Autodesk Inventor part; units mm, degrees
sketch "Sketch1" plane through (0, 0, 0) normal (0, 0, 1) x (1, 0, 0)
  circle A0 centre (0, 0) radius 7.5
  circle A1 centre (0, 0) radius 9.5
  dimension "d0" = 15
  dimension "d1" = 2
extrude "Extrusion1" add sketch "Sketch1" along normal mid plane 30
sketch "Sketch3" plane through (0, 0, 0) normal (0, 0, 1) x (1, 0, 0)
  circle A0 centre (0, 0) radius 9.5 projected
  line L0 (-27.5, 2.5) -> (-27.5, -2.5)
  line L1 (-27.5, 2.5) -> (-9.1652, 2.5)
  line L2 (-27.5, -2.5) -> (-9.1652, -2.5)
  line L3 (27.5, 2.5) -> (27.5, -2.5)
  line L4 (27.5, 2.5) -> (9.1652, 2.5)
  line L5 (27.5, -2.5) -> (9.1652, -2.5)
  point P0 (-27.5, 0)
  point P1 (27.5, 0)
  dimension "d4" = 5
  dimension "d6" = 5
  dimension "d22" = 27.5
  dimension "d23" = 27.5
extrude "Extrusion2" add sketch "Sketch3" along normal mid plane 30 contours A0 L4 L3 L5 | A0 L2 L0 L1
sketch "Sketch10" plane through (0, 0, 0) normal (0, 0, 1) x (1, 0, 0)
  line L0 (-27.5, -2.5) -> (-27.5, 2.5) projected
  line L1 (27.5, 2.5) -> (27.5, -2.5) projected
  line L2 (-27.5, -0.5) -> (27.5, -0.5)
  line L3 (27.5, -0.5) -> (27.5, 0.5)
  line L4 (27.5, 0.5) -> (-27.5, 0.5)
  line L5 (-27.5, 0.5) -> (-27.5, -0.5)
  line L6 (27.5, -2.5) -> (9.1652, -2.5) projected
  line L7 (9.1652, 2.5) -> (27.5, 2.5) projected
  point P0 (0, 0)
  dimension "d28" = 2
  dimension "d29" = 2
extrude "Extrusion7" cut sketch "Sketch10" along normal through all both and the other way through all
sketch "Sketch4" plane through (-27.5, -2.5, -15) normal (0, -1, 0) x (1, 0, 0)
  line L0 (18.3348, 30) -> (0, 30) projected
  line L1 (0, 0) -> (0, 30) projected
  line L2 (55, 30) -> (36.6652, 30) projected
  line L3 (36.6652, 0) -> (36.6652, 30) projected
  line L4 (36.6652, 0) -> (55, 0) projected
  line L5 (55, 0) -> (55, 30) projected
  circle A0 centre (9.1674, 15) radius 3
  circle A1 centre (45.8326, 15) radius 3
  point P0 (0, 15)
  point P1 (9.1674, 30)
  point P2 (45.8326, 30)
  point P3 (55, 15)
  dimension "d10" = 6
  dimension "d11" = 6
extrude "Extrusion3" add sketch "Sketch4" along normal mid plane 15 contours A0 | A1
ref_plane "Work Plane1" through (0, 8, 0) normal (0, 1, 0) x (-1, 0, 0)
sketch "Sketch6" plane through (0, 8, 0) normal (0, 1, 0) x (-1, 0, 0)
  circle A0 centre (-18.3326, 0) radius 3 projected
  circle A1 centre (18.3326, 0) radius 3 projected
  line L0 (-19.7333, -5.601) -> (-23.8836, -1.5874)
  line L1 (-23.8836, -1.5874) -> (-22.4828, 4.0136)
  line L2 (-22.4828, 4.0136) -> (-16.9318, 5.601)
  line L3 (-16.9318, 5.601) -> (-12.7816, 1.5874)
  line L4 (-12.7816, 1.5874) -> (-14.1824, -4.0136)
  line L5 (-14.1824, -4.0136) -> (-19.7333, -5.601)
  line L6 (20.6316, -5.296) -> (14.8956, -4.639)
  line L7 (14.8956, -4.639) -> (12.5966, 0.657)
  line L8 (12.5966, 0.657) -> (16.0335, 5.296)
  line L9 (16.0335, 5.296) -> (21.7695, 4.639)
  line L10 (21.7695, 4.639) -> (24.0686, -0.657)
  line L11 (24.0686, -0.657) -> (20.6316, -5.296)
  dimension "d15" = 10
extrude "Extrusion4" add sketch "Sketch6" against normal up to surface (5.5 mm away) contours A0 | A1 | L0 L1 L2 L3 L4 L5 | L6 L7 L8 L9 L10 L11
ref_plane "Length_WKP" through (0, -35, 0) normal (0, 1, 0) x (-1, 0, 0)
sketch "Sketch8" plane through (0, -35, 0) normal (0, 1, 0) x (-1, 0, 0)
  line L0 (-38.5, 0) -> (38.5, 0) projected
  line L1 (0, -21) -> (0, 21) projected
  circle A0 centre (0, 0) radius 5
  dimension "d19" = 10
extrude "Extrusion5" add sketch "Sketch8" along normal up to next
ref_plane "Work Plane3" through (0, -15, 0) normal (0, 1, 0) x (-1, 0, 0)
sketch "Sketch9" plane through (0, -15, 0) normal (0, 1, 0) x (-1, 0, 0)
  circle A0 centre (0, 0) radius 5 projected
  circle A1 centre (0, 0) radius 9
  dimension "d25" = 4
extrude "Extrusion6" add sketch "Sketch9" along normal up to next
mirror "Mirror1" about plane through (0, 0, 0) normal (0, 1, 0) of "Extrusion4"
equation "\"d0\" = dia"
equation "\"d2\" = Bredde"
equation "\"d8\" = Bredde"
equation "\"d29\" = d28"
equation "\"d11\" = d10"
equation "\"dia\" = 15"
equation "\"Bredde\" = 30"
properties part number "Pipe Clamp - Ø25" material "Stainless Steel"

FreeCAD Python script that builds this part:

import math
import FreeCAD as App
import Part
import Sketcher

V = App.Vector
Q = App.Units.Quantity

doc = App.newDocument("Part")
body = doc.addObject("PartDesign::Body", "Body")
body.AllowCompound = True

sketch1 = body.newObject("Sketcher::SketchObject", "Sketch")
sketch1.AttachmentSupport = (doc.getObject("XY_Plane"), [""])
sketch1.MapMode = "FlatFace"
sketch1.addGeometry([
    Part.Circle(V(0, 0, 0), V(0, 0, 1), 9.5),
    Part.Circle(V(0, 0, 0), V(0, 0, 1), 7.5),
], False)
sketch1.addConstraint([
    Sketcher.Constraint("Coincident", 0, 3, -1, 1),
    Sketcher.Constraint("Coincident", 1, 3, -1, 1),
    Sketcher.Constraint("Diameter", 1, Q("15 mm")),
    Sketcher.Constraint("Diameter", 0, Q("19 mm")),
])
pad1 = body.newObject("PartDesign::Pad", "Pad")
pad1.Profile = sketch1
pad1.Length = 30
pad1.Midplane = True

sketch2 = body.newObject("Sketcher::SketchObject", "Sketch001")
sketch2.AttachmentSupport = (doc.getObject("XY_Plane"), [""])
sketch2.MapMode = "FlatFace"
sketch2.addGeometry([
    Part.ArcOfCircle(Part.Circle(V(0, 0, 0), V(0, 0, 1), 9.5), math.radians(-15.257446), math.radians(15.257446)),
    Part.LineSegment(V(9.1652, -2.5, 0), V(27.5, -2.5, 0)),
    Part.LineSegment(V(27.5, -2.5, 0), V(27.5, 2.5, 0)),
    Part.LineSegment(V(27.5, 2.5, 0), V(9.1652, 2.5, 0)),
    Part.ArcOfCircle(Part.Circle(V(0, 0, 0), V(0, 0, 1), 9.5), math.radians(164.742554), math.radians(195.257446)),
    Part.LineSegment(V(-9.1652, 2.5, 0), V(-27.5, 2.5, 0)),
    Part.LineSegment(V(-27.5, 2.5, 0), V(-27.5, -2.5, 0)),
    Part.LineSegment(V(-27.5, -2.5, 0), V(-9.1652, -2.5, 0)),
], False)
sketch2.addConstraint([
    Sketcher.Constraint("Coincident", 0, 1, 1, 1),
    Sketcher.Constraint("Coincident", 1, 2, 2, 1),
    Sketcher.Constraint("Coincident", 2, 2, 3, 1),
    Sketcher.Constraint("Coincident", 3, 2, 0, 2),
    Sketcher.Constraint("Coincident", 4, 1, 5, 1),
    Sketcher.Constraint("Coincident", 5, 2, 6, 1),
    Sketcher.Constraint("Coincident", 6, 2, 7, 1),
    Sketcher.Constraint("Coincident", 7, 2, 4, 2),
    Sketcher.Constraint("Horizontal", 1),
    Sketcher.Constraint("Vertical", 2),
    Sketcher.Constraint("Horizontal", 3),
    Sketcher.Constraint("Horizontal", 5),
    Sketcher.Constraint("Vertical", 6),
    Sketcher.Constraint("Horizontal", 7),
    Sketcher.Constraint("Coincident", 0, 3, -1, 1),
    Sketcher.Constraint("Coincident", 4, 3, -1, 1),
    Sketcher.Constraint("Equal", 0, 4),
    Sketcher.Constraint("Symmetric", 1, 2, 5, 2, -1, 1),
    Sketcher.Constraint("Horizontal", 3, 2, 4, 1),
    Sketcher.Constraint("Horizontal", 1, 2, 6, 2),
    Sketcher.Constraint("DistanceY", 2, 1, 2, 2, Q("5 mm")),
    Sketcher.Constraint("DistanceX", -1, 1, 1, 2, Q("27.5 mm")),
    Sketcher.Constraint("Radius", 0, Q("9.5 mm")),
])
pad2 = body.newObject("PartDesign::Pad", "Pad001")
pad2.Profile = sketch2
pad2.Length = 30
pad2.Midplane = True

sketch3 = body.newObject("Sketcher::SketchObject", "Sketch002")
sketch3.AttachmentSupport = (doc.getObject("XY_Plane"), [""])
sketch3.MapMode = "FlatFace"
sketch3.addGeometry([
    Part.LineSegment(V(-27.5, 0.5, 0), V(-27.5, -0.5, 0)),
    Part.LineSegment(V(-27.5, -0.5, 0), V(27.5, -0.5, 0)),
    Part.LineSegment(V(27.5, -0.5, 0), V(27.5, 0.5, 0)),
    Part.LineSegment(V(27.5, 0.5, 0), V(-27.5, 0.5, 0)),
], False)
sketch3.addConstraint([
    Sketcher.Constraint("Coincident", 0, 2, 1, 1),
    Sketcher.Constraint("Coincident", 1, 2, 2, 1),
    Sketcher.Constraint("Coincident", 2, 2, 3, 1),
    Sketcher.Constraint("Coincident", 3, 2, 0, 1),
    Sketcher.Constraint("Vertical", 0),
    Sketcher.Constraint("Horizontal", 1),
    Sketcher.Constraint("Vertical", 2),
    Sketcher.Constraint("Horizontal", 3),
    Sketcher.Constraint("Symmetric", 0, 2, 2, 2, -1, 1),
    Sketcher.Constraint("DistanceX", 1, 1, 1, 2, Q("55 mm")),
    Sketcher.Constraint("DistanceY", 0, 2, 0, 1, Q("1 mm")),
])
pocket1 = body.newObject("PartDesign::Pocket", "Pocket")
pocket1.Profile = sketch3
pocket1.Type = "ThroughAll"
pocket1.Midplane = True

sketch4 = body.newObject("Sketcher::SketchObject", "Sketch003")
sketch4.AttachmentSupport = (doc.getObject("XZ_Plane"), [""])
sketch4.MapMode = "FlatFace"
sketch4.AttachmentOffset = App.Placement(V(0, 0, 2.5), App.Rotation())
sketch4.addGeometry([
    Part.Circle(V(-18.3326, 0, 0), V(0, 0, 1), 3),
    Part.Circle(V(18.3326, 0, 0), V(0, 0, 1), 3),
], False)
sketch4.addConstraint([
    Sketcher.Constraint("Equal", 0, 1),
    Sketcher.Constraint("Symmetric", 0, 3, 1, 3, -1, 1),
    Sketcher.Constraint("PointOnObject", 0, 3, -1),
    Sketcher.Constraint("Diameter", 0, Q("6 mm")),
    Sketcher.Constraint("DistanceX", 0, 3, -1, 1, Q("18.3326 mm")),
])
pad3 = body.newObject("PartDesign::Pad", "Pad002")
pad3.Profile = sketch4
pad3.Length = 15
pad3.Midplane = True

sketch5 = body.newObject("Sketcher::SketchObject", "Sketch004")
sketch5.AttachmentSupport = (doc.getObject("XZ_Plane"), [""])
sketch5.MapMode = "FlatFace"
sketch5.AttachmentOffset = App.Placement(V(0, 0, -8), App.Rotation())
sketch5.addGeometry([
    Part.LineSegment(V(23.8836, -1.5874, 0), V(19.7333, -5.601, 0)),
    Part.LineSegment(V(19.7333, -5.601, 0), V(14.1824, -4.0136, 0)),
    Part.LineSegment(V(14.1824, -4.0136, 0), V(12.7816, 1.5874, 0)),
    Part.LineSegment(V(12.7816, 1.5874, 0), V(16.9318, 5.601, 0)),
    Part.LineSegment(V(16.9318, 5.601, 0), V(22.4828, 4.0136, 0)),
    Part.LineSegment(V(22.4828, 4.0136, 0), V(23.8836, -1.5874, 0)),
    Part.LineSegment(V(-14.8956, -4.639, 0), V(-20.6316, -5.296, 0)),
    Part.LineSegment(V(-20.6316, -5.296, 0), V(-24.0686, -0.657, 0)),
    Part.LineSegment(V(-24.0686, -0.657, 0), V(-21.7695, 4.639, 0)),
    Part.LineSegment(V(-21.7695, 4.639, 0), V(-16.0335, 5.296, 0)),
    Part.LineSegment(V(-16.0335, 5.296, 0), V(-12.5966, 0.657, 0)),
    Part.LineSegment(V(-12.5966, 0.657, 0), V(-14.8956, -4.639, 0)),
], False)
sketch5.addConstraint([
    Sketcher.Constraint("Coincident", 0, 2, 1, 1),
    Sketcher.Constraint("Coincident", 1, 2, 2, 1),
    Sketcher.Constraint("Coincident", 2, 2, 3, 1),
    Sketcher.Constraint("Coincident", 3, 2, 4, 1),
    Sketcher.Constraint("Coincident", 4, 2, 5, 1),
    Sketcher.Constraint("Coincident", 5, 2, 0, 1),
    Sketcher.Constraint("Coincident", 6, 2, 7, 1),
    Sketcher.Constraint("Coincident", 7, 2, 8, 1),
    Sketcher.Constraint("Coincident", 8, 2, 9, 1),
    Sketcher.Constraint("Coincident", 9, 2, 10, 1),
    Sketcher.Constraint("Coincident", 10, 2, 11, 1),
    Sketcher.Constraint("Coincident", 11, 2, 6, 1),
    Sketcher.Constraint("Parallel", 0, 3),
    Sketcher.Constraint("Parallel", 1, 4),
    Sketcher.Constraint("Parallel", 2, 5),
    Sketcher.Constraint("Parallel", 6, 9),
    Sketcher.Constraint("Parallel", 7, 10),
    Sketcher.Constraint("Parallel", 8, 11),
    Sketcher.Constraint("Equal", 0, 1),
    Sketcher.Constraint("Equal", 1, 2),
    Sketcher.Constraint("Equal", 2, 3),
    Sketcher.Constraint("Equal", 5, 6),
    Sketcher.Constraint("Equal", 6, 7),
    Sketcher.Constraint("Equal", 7, 8),
    Sketcher.Constraint("Equal", 8, 9),
    Sketcher.Constraint("Angle", 0, Q("-135.9593 deg")),
    Sketcher.Constraint("Angle", 1, Q("164.041 deg")),
    Sketcher.Constraint("DistanceY", 0, 2, -1, 1, Q("5.601 mm")),
    Sketcher.Constraint("DistanceY", -1, 1, 3, 2, Q("5.601 mm")),
    Sketcher.Constraint("DistanceY", 6, 2, -1, 1, Q("5.296 mm")),
    Sketcher.Constraint("DistanceY", 7, 2, -1, 1, Q("0.657 mm")),
    Sketcher.Constraint("DistanceY", -1, 1, 8, 2, Q("4.639 mm")),
    Sketcher.Constraint("DistanceY", -1, 1, 9, 2, Q("5.296 mm")),
    Sketcher.Constraint("DistanceX", 1, 2, 0, 2, Q("5.551 mm")),
    Sketcher.Constraint("DistanceX", 6, 2, 1, 2, Q("34.814 mm")),
    Sketcher.Constraint("DistanceX", -1, 1, 0, 2, Q("19.7333 mm")),
])
pad4 = body.newObject("PartDesign::Pad", "Pad003")
pad4.Profile = sketch5
pad4.Length = 5.5

sketch6 = body.newObject("Sketcher::SketchObject", "Sketch005")
sketch6.AttachmentSupport = (doc.getObject("XZ_Plane"), [""])
sketch6.MapMode = "FlatFace"
sketch6.AttachmentOffset = App.Placement(V(0, 0, 35), App.Rotation())
sketch6.addGeometry(Part.Circle(V(0, 0, 0), V(0, 0, 1), 5), False)
sketch6.addConstraint([
    Sketcher.Constraint("Coincident", 0, 3, -1, 1),
    Sketcher.Constraint("Diameter", 0, Q("10 mm")),
])
pad5 = body.newObject("PartDesign::Pad", "Pad004")
pad5.Profile = sketch6
pad5.Type = "UpToFirst"
pad5.Reversed = True

sketch7 = body.newObject("Sketcher::SketchObject", "Sketch006")
sketch7.AttachmentSupport = (doc.getObject("XZ_Plane"), [""])
sketch7.MapMode = "FlatFace"
sketch7.AttachmentOffset = App.Placement(V(0, 0, 15), App.Rotation())
sketch7.addGeometry([
    Part.Circle(V(0, 0, 0), V(0, 0, 1), 9),
    Part.Circle(V(0, 0, 0), V(0, 0, 1), 5),
], False)
sketch7.addConstraint([
    Sketcher.Constraint("Coincident", 0, 3, -1, 1),
    Sketcher.Constraint("Coincident", 1, 3, -1, 1),
    Sketcher.Constraint("Diameter", 0, Q("18 mm")),
    Sketcher.Constraint("Diameter", 1, Q("10 mm")),
])
pad6 = body.newObject("PartDesign::Pad", "Pad005")
pad6.Profile = sketch7
pad6.Type = "UpToFirst"
pad6.Reversed = True
doc.recompute()

mirrored = body.newObject("PartDesign::Mirrored", "Mirrored")
mirrored.Originals = [pad4]
mirrored.MirrorPlane = (doc.getObject("XZ_Plane"), [""])
body.Tip = mirrored

doc.recompute()
